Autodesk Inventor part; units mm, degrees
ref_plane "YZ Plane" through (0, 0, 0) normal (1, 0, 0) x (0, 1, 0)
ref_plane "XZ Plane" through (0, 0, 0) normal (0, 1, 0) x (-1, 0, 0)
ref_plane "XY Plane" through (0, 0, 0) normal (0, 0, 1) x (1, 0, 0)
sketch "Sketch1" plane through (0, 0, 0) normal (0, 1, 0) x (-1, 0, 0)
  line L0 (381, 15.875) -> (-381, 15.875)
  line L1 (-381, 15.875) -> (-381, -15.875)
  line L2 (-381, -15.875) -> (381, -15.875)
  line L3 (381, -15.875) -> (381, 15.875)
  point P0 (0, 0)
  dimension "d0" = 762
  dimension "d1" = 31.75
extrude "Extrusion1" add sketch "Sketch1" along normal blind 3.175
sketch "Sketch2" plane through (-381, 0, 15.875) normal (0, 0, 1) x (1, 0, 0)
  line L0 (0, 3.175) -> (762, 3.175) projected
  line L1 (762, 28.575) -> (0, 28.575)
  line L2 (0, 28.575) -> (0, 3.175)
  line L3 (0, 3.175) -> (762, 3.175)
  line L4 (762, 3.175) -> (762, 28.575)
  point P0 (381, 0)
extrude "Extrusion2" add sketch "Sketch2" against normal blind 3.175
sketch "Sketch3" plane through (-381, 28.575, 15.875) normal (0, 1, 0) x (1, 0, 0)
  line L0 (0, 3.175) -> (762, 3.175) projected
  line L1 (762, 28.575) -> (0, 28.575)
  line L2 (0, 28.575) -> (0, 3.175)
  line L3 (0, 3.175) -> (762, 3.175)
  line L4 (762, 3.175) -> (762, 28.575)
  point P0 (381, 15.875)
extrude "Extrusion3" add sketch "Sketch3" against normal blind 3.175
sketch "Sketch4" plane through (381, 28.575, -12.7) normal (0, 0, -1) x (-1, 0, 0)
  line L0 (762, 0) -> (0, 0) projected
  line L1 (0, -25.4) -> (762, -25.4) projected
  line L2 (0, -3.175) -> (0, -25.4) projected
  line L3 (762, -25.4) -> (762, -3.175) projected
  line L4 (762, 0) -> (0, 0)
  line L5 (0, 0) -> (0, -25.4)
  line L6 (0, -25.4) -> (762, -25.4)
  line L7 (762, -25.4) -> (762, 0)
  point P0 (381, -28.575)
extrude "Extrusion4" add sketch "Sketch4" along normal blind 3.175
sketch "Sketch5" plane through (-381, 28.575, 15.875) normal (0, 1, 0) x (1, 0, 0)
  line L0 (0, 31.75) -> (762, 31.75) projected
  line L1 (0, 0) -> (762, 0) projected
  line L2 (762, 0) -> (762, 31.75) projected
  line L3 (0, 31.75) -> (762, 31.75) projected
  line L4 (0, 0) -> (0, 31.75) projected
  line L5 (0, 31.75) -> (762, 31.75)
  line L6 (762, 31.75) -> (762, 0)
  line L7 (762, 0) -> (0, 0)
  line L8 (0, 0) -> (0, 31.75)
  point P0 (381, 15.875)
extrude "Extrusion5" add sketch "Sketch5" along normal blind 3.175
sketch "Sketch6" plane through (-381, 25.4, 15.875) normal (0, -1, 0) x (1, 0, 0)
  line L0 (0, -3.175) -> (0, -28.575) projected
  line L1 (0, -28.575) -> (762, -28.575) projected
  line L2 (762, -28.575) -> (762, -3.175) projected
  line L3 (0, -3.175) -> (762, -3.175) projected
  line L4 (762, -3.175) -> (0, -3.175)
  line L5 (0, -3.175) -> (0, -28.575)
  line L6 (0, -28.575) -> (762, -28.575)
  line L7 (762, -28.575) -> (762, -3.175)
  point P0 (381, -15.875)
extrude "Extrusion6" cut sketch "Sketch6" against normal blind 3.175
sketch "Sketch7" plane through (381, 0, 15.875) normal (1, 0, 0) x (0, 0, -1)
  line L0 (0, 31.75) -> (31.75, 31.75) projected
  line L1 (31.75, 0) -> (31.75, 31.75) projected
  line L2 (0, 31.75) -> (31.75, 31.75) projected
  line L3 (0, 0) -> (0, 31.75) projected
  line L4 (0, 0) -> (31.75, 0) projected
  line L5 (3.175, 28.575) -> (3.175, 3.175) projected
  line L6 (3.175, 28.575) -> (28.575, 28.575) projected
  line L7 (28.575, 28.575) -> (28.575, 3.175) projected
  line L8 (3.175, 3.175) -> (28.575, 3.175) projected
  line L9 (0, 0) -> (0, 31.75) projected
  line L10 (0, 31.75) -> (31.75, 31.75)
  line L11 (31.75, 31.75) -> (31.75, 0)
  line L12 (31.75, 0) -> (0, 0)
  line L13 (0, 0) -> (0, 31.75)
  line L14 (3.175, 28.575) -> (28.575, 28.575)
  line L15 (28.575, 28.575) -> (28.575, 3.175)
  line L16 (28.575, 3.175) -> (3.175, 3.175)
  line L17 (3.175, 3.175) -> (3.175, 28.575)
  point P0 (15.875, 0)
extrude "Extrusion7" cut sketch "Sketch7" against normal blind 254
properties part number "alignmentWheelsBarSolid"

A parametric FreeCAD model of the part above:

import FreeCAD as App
import Part
import Sketcher

V = App.Vector
Q = App.Units.Quantity


def add_polygon(sketch, points):
    """Adds a closed chain of lines whose ends are joined by coincident constraints."""
    first, n = sketch.GeometryCount, len(points)
    for a, b in zip(points, points[1:] + points[:1]):
        sketch.addGeometry(Part.LineSegment(App.Vector(*a, 0), App.Vector(*b, 0)), False)
    for i in range(n):
        sketch.addConstraint(Sketcher.Constraint("Coincident", first + i, 2, first + (i + 1) % n, 1))

doc = App.newDocument("Part")
body = doc.addObject("PartDesign::Body", "Body")

# Sketch on XZ plane
sketch1 = doc.addObject("Sketcher::SketchObject", "Sketch")
body.addObject(sketch1)
sketch1.AttachmentSupport = (doc.XZ_Plane, [""])
sketch1.MapMode = "FlatFace"
add_polygon(sketch1, [(-381, -16), (-381, 16), (381, 16), (381, -16)])  # lines 0-3
sketch1.addConstraint(Sketcher.Constraint("Vertical", 0))
sketch1.addConstraint(Sketcher.Constraint("Horizontal", 1))
sketch1.addConstraint(Sketcher.Constraint("Vertical", 2))
sketch1.addConstraint(Sketcher.Constraint("Horizontal", 3))
sketch1.addConstraint(Sketcher.Constraint("Symmetric", 0, 2, 2, 2, -1, 1))
sketch1.addConstraint(Sketcher.Constraint("DistanceX", 1, 1, 1, 2, Q("30 in")))
sketch1.addConstraint(Sketcher.Constraint("DistanceY", 0, 1, 0, 2, Q("1.25 in")))
pad1 = doc.addObject("PartDesign::Pad", "Pad")
body.addObject(pad1)
pad1.Profile = sketch1
pad1.Length = Q("0.125 in")
pad1.Reversed = True

# Sketch on XY plane
sketch2 = doc.addObject("Sketcher::SketchObject", "Sketch001")
body.addObject(sketch2)
sketch2.AttachmentSupport = (doc.XY_Plane, [""])
sketch2.MapMode = "FlatFace"
sketch2.AttachmentOffset = App.Placement(V(0, 0, 0.625 * 25.4), App.Rotation())
add_polygon(sketch2, [(-381, 29), (-381, 3), (381, 3), (381, 29)])  # lines 0-3
sketch2.addConstraint(Sketcher.Constraint("Vertical", 0))
sketch2.addConstraint(Sketcher.Constraint("Horizontal", 1))
sketch2.addConstraint(Sketcher.Constraint("Vertical", 2))
sketch2.addConstraint(Sketcher.Constraint("Horizontal", 3))
sketch2.addConstraint(Sketcher.Constraint("DistanceX", 1, 1, 1, 2, Q("30 in")))
sketch2.addConstraint(Sketcher.Constraint("DistanceY", 0, 2, 0, 1, Q("1 in")))
sketch2.addConstraint(Sketcher.Constraint("DistanceX", 0, 2, -1, 1, Q("15 in")))
sketch2.addConstraint(Sketcher.Constraint("DistanceY", -1, 1, 0, 2, Q("0.125 in")))
pad2 = doc.addObject("PartDesign::Pad", "Pad001")
body.addObject(pad2)
pad2.Profile = sketch2
pad2.Length = Q("0.125 in")
pad2.Reversed = True

# Sketch on XZ plane
sketch3 = doc.addObject("Sketcher::SketchObject", "Sketch002")
body.addObject(sketch3)
sketch3.AttachmentSupport = (doc.XZ_Plane, [""])
sketch3.MapMode = "FlatFace"
sketch3.AttachmentOffset = App.Placement(V(0, 0, -1.125 * 25.4), App.Rotation())
add_polygon(sketch3, [(-381, -13), (-381, 13), (381, 13), (381, -13)])  # lines 0-3
sketch3.addConstraint(Sketcher.Constraint("Vertical", 0))
sketch3.addConstraint(Sketcher.Constraint("Horizontal", 1))
sketch3.addConstraint(Sketcher.Constraint("Vertical", 2))
sketch3.addConstraint(Sketcher.Constraint("Horizontal", 3))
sketch3.addConstraint(Sketcher.Constraint("Symmetric", 0, 2, 2, 2, -1, 1))
sketch3.addConstraint(Sketcher.Constraint("DistanceX", 1, 1, 1, 2, Q("30 in")))
sketch3.addConstraint(Sketcher.Constraint("DistanceY", 0, 1, 0, 2, Q("1 in")))
pad3 = doc.addObject("PartDesign::Pad", "Pad002")
body.addObject(pad3)
pad3.Profile = sketch3
pad3.Length = Q("0.125 in")

# Sketch on XY plane
sketch4 = doc.addObject("Sketcher::SketchObject", "Sketch003")
body.addObject(sketch4)
sketch4.AttachmentSupport = (doc.XY_Plane, [""])
sketch4.MapMode = "FlatFace"
sketch4.AttachmentOffset = App.Placement(V(0, 0, -0.5 * 25.4), App.Rotation())
add_polygon(sketch4, [(-381, 3), (-381, 29), (381, 29), (381, 3)])  # lines 0-3
sketch4.addConstraint(Sketcher.Constraint("Vertical", 0))
sketch4.addConstraint(Sketcher.Constraint("Horizontal", 1))
sketch4.addConstraint(Sketcher.Constraint("Vertical", 2))
sketch4.addConstraint(Sketcher.Constraint("Horizontal", 3))
sketch4.addConstraint(Sketcher.Constraint("DistanceX", 1, 1, 1, 2, Q("30 in")))
sketch4.addConstraint(Sketcher.Constraint("DistanceY", 0, 1, 0, 2, Q("1 in")))
sketch4.addConstraint(Sketcher.Constraint("DistanceX", 0, 2, -1, 1, Q("15 in")))
sketch4.addConstraint(Sketcher.Constraint("DistanceY", -1, 1, 0, 2, Q("1.125 in")))
pad4 = doc.addObject("PartDesign::Pad", "Pad003")
body.addObject(pad4)
pad4.Profile = sketch4
pad4.Length = Q("0.125 in")
pad4.Reversed = True

# Sketch on XZ plane
sketch5 = doc.addObject("Sketcher::SketchObject", "Sketch004")
body.addObject(sketch5)
sketch5.AttachmentSupport = (doc.XZ_Plane, [""])
sketch5.MapMode = "FlatFace"
sketch5.AttachmentOffset = App.Placement(V(0, 0, -1.125 * 25.4), App.Rotation())
add_polygon(sketch5, [(381, -16), (-381, -16), (-381, 16), (381, 16)])  # lines 0-3
sketch5.addConstraint(Sketcher.Constraint("Horizontal", 0))
sketch5.addConstraint(Sketcher.Constraint("Vertical", 1))
sketch5.addConstraint(Sketcher.Constraint("Horizontal", 2))
sketch5.addConstraint(Sketcher.Constraint("Vertical", 3))
sketch5.addConstraint(Sketcher.Constraint("Symmetric", 0, 2, 2, 2, -1, 1))
sketch5.addConstraint(Sketcher.Constraint("DistanceX", 0, 2, 0, 1, Q("30 in")))
sketch5.addConstraint(Sketcher.Constraint("DistanceY", 1, 1, 1, 2, Q("1.25 in")))
pad5 = doc.addObject("PartDesign::Pad", "Pad004")
body.addObject(pad5)
pad5.Profile = sketch5
pad5.Length = Q("0.125 in")
pad5.Reversed = True

# Sketch on XZ plane
sketch6 = doc.addObject("Sketcher::SketchObject", "Sketch005")
body.addObject(sketch6)
sketch6.AttachmentSupport = (doc.XZ_Plane, [""])
sketch6.MapMode = "FlatFace"
sketch6.AttachmentOffset = App.Placement(V(0, 0, -1 * 25.4), App.Rotation())
add_polygon(sketch6, [(381, 13), (-381, 13), (-381, -13), (381, -13)])  # lines 0-3
sketch6.addConstraint(Sketcher.Constraint("Horizontal", 0))
sketch6.addConstraint(Sketcher.Constraint("Vertical", 1))
sketch6.addConstraint(Sketcher.Constraint("Horizontal", 2))
sketch6.addConstraint(Sketcher.Constraint("Vertical", 3))
sketch6.addConstraint(Sketcher.Constraint("Symmetric", 0, 2, 2, 2, -1, 1))
sketch6.addConstraint(Sketcher.Constraint("DistanceX", 0, 2, 0, 1, Q("30 in")))
sketch6.addConstraint(Sketcher.Constraint("DistanceY", 1, 2, 1, 1, Q("1 in")))
pocket1 = doc.addObject("PartDesign::Pocket", "Pocket")
body.addObject(pocket1)
pocket1.Profile = sketch6
pocket1.Length = Q("0.125 in")

# Sketch on YZ plane
sketch7 = doc.addObject("Sketcher::SketchObject", "Sketch006")
body.addObject(sketch7)
sketch7.AttachmentSupport = (doc.YZ_Plane, [""])
sketch7.MapMode = "FlatFace"
sketch7.AttachmentOffset = App.Placement(V(0, 0, 15 * 25.4), App.Rotation())
add_polygon(sketch7, [(32, -16), (32, 16), (0, 16), (0, -16)])  # lines 0-3
add_polygon(sketch7, [(3, 13), (29, 13), (29, -13), (3, -13)])  # lines 4-7
sketch7.addConstraint(Sketcher.Constraint("Vertical", 0))
sketch7.addConstraint(Sketcher.Constraint("Horizontal", 1))
sketch7.addConstraint(Sketcher.Constraint("Vertical", 2))
sketch7.addConstraint(Sketcher.Constraint("Horizontal", 3))
sketch7.addConstraint(Sketcher.Constraint("Horizontal", 4))
sketch7.addConstraint(Sketcher.Constraint("Vertical", 5))
sketch7.addConstraint(Sketcher.Constraint("Horizontal", 6))
sketch7.addConstraint(Sketcher.Constraint("Vertical", 7))
sketch7.addConstraint(Sketcher.Constraint("Symmetric", 1, 2, 2, 2, -1, 1))
sketch7.addConstraint(Sketcher.Constraint("Equal", 3, 0))
sketch7.addConstraint(Sketcher.Constraint("Equal", 6, 5))
sketch7.addConstraint(Sketcher.Constraint("DistanceX", 4, 1, 4, 2, Q("1 in")))
sketch7.addConstraint(Sketcher.Constraint("DistanceX", 1, 2, 1, 1, Q("1.25 in")))
sketch7.addConstraint(Sketcher.Constraint("DistanceY", -1, 1, 4, 2, Q("0.5 in")))
sketch7.addConstraint(Sketcher.Constraint("DistanceX", -1, 1, 4, 2, Q("1.125 in")))
pocket2 = doc.addObject("PartDesign::Pocket", "Pocket001")
body.addObject(pocket2)
pocket2.Profile = sketch7
pocket2.Length = Q("10 in")

doc.recompute()
